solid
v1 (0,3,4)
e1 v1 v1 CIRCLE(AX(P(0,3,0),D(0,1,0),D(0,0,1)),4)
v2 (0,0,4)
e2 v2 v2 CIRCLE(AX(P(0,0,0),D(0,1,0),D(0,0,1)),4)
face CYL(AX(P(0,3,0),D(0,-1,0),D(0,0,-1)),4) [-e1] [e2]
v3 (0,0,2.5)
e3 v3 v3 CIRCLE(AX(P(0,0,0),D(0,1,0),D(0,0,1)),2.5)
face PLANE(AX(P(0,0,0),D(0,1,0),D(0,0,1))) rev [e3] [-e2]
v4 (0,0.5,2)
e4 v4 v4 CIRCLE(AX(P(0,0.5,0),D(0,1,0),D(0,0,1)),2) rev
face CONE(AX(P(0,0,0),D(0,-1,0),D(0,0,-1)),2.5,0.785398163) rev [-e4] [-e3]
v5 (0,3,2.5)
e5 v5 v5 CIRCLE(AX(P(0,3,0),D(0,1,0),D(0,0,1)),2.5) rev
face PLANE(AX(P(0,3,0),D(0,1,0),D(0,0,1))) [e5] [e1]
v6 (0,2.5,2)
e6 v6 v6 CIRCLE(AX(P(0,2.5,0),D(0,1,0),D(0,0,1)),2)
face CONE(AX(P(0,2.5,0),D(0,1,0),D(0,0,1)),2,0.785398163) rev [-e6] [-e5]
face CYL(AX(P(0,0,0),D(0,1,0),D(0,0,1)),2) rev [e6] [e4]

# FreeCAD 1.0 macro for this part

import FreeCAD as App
import Part
import Sketcher

V = App.Vector
Q = App.Units.Quantity


def edges_at(feature, points):
    """Names of the edges that pass closest to the given points."""
    edges = feature.Shape.Edges
    near = lambda p: min(range(len(edges)), key=lambda i: edges[i].distToShape(Part.Vertex(*p))[0])
    return sorted({f"Edge{near(p) + 1}" for p in points})

doc = App.newDocument("Part")
params = doc.addObject("Spreadsheet::Sheet", "Params")
for row, (alias, value) in enumerate([
    ("sketch1_diameter", "8 mm"),
    ("pad1_length", "3 mm"),
    ("sketch2_diameter", "4 mm"),
    ("chamfer_size", "0.5 mm"),
], start=1):
    params.set(f"A{row}", alias)
    params.set(f"B{row}", "=" + value)
    params.setAlias(f"B{row}", alias)

body = doc.addObject("PartDesign::Body", "Body")

sketch1 = body.newObject("Sketcher::SketchObject", "Sketch")
sketch1.AttachmentSupport = (doc.getObject("XZ_Plane"), [""])
sketch1.MapMode = "FlatFace"
sketch1.addGeometry(Part.Circle(V(0, 0, 0), V(0, 0, 1), 4), False)
sketch1.addConstraint([
    Sketcher.Constraint("Coincident", 0, 3, -1, 1),
    Sketcher.Constraint("Diameter", 0, Q("8 mm")),
])
sketch1.setExpression("Constraints[1]", "Params.sketch1_diameter")
pad1 = body.newObject("PartDesign::Pad", "Pad")
pad1.Profile = sketch1
pad1.setExpression("Length", "Params.pad1_length")
pad1.Reversed = True

sketch2 = body.newObject("Sketcher::SketchObject", "Sketch001")
sketch2.AttachmentSupport = (doc.getObject("XZ_Plane"), [""])
sketch2.MapMode = "FlatFace"
sketch2.AttachmentOffset = App.Placement(V(0, 0, -3), App.Rotation())
sketch2.addGeometry(Part.Circle(V(0, 0, 0), V(0, 0, 1), 2), False)
sketch2.addConstraint([
    Sketcher.Constraint("Coincident", 0, 3, -1, 1),
    Sketcher.Constraint("Diameter", 0, Q("4 mm")),
])
sketch2.setExpression("Constraints[1]", "Params.sketch2_diameter")
pocket1 = body.newObject("PartDesign::Pocket", "Pocket")
pocket1.Profile = sketch2
pocket1.Type = "ThroughAll"
pocket1.Reversed = True
doc.recompute()

chamfer = body.newObject("PartDesign::Chamfer", "Chamfer")
chamfer.Base = (pocket1, edges_at(pocket1, [(0, 0, -2), (0, 3, -2)]))
chamfer.setExpression("Size", "Params.chamfer_size")

doc.recompute()
